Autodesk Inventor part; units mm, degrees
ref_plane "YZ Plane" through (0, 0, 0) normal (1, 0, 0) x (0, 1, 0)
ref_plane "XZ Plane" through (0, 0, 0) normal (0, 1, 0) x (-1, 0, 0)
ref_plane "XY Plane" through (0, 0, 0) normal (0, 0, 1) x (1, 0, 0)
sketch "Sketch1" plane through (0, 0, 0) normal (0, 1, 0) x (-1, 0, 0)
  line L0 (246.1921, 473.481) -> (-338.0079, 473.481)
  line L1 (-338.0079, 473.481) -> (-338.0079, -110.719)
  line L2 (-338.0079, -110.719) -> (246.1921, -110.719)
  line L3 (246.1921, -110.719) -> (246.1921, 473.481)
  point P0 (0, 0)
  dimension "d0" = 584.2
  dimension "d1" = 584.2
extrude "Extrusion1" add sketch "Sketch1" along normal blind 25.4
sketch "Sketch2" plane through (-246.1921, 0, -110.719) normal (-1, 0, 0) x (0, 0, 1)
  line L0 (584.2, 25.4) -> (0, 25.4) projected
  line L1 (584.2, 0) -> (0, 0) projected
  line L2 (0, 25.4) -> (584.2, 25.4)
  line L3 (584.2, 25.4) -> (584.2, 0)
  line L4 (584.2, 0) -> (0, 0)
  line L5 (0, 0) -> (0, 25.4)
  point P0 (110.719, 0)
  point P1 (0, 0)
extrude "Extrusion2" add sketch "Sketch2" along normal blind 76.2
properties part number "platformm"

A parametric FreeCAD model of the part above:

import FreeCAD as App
import Part
import Sketcher
Q = App.Units.Quantity


def add_polygon(sketch, points):
    """Adds a closed chain of lines whose ends are joined by coincident constraints."""
    first, n = sketch.GeometryCount, len(points)
    for a, b in zip(points, points[1:] + points[:1]):
        sketch.addGeometry(Part.LineSegment(App.Vector(*a, 0), App.Vector(*b, 0)), False)
    for i in range(n):
        sketch.addConstraint(Sketcher.Constraint("Coincident", first + i, 2, first + (i + 1) % n, 1))

doc = App.newDocument("Part")
body = doc.addObject("PartDesign::Body", "Body")

# Sketch on XZ plane
sketch1 = body.newObject("Sketcher::SketchObject", "Sketch")
sketch1.AttachmentSupport = (doc.getObject("XZ_Plane"), [""])
sketch1.MapMode = "FlatFace"
add_polygon(sketch1, [(-246.1921, -110.719), (-246.1921, 473.481), (338.0079, 473.481), (338.0079, -110.719)])  # lines 0-3
sketch1.addConstraint([
    Sketcher.Constraint("Vertical", 0),
    Sketcher.Constraint("Horizontal", 1),
    Sketcher.Constraint("Vertical", 2),
    Sketcher.Constraint("Horizontal", 3),
    Sketcher.Constraint("Equal", 3, 0),
    Sketcher.Constraint("DistanceX", 1, 1, 1, 2, Q("23 in")),
    Sketcher.Constraint("DistanceX", 0, 2, -1, 1, Q("9.6926 in")),
    Sketcher.Constraint("DistanceY", -1, 1, 0, 2, Q("473.481 mm")),
])
pad1 = body.newObject("PartDesign::Pad", "Pad")
pad1.Profile = sketch1
pad1.Length = Q("1 in")
pad1.Reversed = True

# Sketch on YZ plane
sketch2 = body.newObject("Sketcher::SketchObject", "Sketch001")
sketch2.AttachmentSupport = (doc.getObject("YZ_Plane"), [""])
sketch2.MapMode = "FlatFace"
sketch2.AttachmentOffset = App.Placement(App.Vector(0, 0, -9.6926024 * 25.4), App.Rotation())
add_polygon(sketch2, [(0, 473.481), (25.4, 473.481), (25.4, -110.719), (0, -110.719)])  # lines 0-3
sketch2.addConstraint([
    Sketcher.Constraint("Horizontal", 0),
    Sketcher.Constraint("Vertical", 1),
    Sketcher.Constraint("Horizontal", 2),
    Sketcher.Constraint("Vertical", 3),
    Sketcher.Constraint("PointOnObject", 2, 2, -2),
    Sketcher.Constraint("DistanceX", 0, 1, 0, 2, Q("1 in")),
    Sketcher.Constraint("DistanceY", 1, 2, 1, 1, Q("23 in")),
    Sketcher.Constraint("DistanceY", -1, 1, 0, 2, Q("473.481 mm")),
])
pad2 = body.newObject("PartDesign::Pad", "Pad001")
pad2.Profile = sketch2
pad2.Length = Q("3 in")
pad2.Reversed = True

doc.recompute()
